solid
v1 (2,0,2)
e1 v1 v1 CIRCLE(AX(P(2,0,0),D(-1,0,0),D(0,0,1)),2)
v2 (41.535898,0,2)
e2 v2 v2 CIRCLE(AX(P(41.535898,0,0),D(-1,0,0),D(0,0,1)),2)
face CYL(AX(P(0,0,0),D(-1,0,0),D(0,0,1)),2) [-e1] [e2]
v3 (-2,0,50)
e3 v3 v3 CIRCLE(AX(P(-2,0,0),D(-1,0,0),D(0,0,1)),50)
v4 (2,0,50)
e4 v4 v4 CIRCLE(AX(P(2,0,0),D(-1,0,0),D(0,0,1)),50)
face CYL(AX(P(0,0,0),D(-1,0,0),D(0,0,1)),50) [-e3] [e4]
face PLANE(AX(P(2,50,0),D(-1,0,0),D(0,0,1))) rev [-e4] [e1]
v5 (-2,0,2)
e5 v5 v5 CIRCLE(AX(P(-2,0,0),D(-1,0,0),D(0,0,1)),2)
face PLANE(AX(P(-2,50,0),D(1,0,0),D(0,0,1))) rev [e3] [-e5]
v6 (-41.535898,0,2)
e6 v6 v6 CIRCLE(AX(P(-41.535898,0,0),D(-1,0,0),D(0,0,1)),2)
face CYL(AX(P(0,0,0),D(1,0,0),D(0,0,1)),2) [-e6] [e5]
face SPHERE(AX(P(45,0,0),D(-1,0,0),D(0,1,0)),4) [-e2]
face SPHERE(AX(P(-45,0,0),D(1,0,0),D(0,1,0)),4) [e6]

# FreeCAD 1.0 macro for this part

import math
import FreeCAD as App
import Part
import Sketcher

V = App.Vector

doc = App.newDocument("Part")
body = doc.addObject("PartDesign::Body", "Body")

sketch1 = doc.addObject("Sketcher::SketchObject", "Sketch")
body.addObject(sketch1)
sketch1.AttachmentSupport = (doc.XY_Plane, [""])
sketch1.MapMode = "FlatFace"
sketch1.addGeometry([
    Part.LineSegment(V(0, 50, 0), V(0, 0, 0)),
    Part.LineSegment(V(0, 0, 0), V(49, 0, 0)),
    Part.ArcOfCircle(Part.Circle(V(45, 0, 0), V(0, 0, 1), 4), math.radians(0), math.radians(150)),
    Part.LineSegment(V(41.5, 2, 0), V(2, 2, 0)),
    Part.LineSegment(V(2, 2, 0), V(2, 50, 0)),
    Part.LineSegment(V(2, 50, 0), V(0, 50, 0)),
], False)
sketch1.addConstraint([
    Sketcher.Constraint("Coincident", 0, 2, 1, 1),
    Sketcher.Constraint("Coincident", 1, 2, 2, 1),
    Sketcher.Constraint("Coincident", 2, 2, 3, 1),
    Sketcher.Constraint("Coincident", 3, 2, 4, 1),
    Sketcher.Constraint("Coincident", 4, 2, 5, 1),
    Sketcher.Constraint("Coincident", 5, 2, 0, 1),
    Sketcher.Constraint("Vertical", 0),
    Sketcher.Constraint("Horizontal", 1),
    Sketcher.Constraint("Horizontal", 3),
    Sketcher.Constraint("Vertical", 4),
    Sketcher.Constraint("Horizontal", 5),
    Sketcher.Constraint("Coincident", 0, 2, -1, 1),
    Sketcher.Constraint("PointOnObject", 2, 3, -1),
    Sketcher.Constraint("Radius", 2, 4.0),
    Sketcher.Constraint("DistanceX", 1, 1, 1, 2, 49.0),
    Sketcher.Constraint("DistanceX", 5, 2, 5, 1, 2.0),
    Sketcher.Constraint("DistanceY", 0, 2, 0, 1, 50.0),
    Sketcher.Constraint("DistanceY", 4, 1, 4, 2, 48.0),
])
revolution = doc.addObject("PartDesign::Revolution", "Revolution")
body.addObject(revolution)
revolution.Profile = sketch1
revolution.ReferenceAxis = (sketch1, ["H_Axis"])
revolution.Angle = 360
doc.recompute()

mirrored = doc.addObject("PartDesign::Mirrored", "Mirrored")
body.addObject(mirrored)
mirrored.Originals = [revolution]
mirrored.MirrorPlane = (doc.YZ_Plane, [""])
body.Tip = mirrored

doc.recompute()
